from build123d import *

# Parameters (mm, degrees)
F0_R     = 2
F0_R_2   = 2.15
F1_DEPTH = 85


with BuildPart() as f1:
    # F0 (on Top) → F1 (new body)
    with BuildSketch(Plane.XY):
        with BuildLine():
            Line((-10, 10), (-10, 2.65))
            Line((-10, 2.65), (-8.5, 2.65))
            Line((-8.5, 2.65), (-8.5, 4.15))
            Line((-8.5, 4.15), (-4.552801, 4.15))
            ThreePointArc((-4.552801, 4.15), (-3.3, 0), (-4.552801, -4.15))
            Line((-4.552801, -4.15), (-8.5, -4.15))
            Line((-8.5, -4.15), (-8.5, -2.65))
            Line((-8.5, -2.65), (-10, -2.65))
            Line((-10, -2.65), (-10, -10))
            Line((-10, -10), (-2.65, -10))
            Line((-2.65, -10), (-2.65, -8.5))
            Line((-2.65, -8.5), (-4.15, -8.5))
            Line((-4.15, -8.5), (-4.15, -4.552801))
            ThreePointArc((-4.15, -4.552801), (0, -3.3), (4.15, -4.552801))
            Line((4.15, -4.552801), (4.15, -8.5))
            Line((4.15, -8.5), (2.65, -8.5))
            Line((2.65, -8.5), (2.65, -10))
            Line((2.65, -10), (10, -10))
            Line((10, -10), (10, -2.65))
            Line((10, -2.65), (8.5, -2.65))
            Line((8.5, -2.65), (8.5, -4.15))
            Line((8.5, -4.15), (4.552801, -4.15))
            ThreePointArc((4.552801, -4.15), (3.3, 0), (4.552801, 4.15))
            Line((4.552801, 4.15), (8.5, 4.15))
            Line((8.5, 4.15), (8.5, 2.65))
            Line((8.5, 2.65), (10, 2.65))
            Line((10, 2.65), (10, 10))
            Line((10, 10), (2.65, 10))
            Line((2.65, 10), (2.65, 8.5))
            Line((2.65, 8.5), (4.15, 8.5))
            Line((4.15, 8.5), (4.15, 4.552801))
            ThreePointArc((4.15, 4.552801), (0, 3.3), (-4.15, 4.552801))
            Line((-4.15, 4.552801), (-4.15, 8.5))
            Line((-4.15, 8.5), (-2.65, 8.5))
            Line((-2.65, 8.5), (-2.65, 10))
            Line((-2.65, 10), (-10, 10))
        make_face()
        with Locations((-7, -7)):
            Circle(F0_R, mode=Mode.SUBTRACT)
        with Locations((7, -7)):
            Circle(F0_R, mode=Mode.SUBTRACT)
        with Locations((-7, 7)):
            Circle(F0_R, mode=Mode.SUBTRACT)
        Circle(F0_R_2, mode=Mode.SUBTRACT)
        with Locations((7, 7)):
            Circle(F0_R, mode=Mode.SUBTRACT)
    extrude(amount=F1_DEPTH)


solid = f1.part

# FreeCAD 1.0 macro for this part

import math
import FreeCAD as App
import Part
import Sketcher
Q = App.Units.Quantity

doc = App.newDocument("Part")
body = doc.addObject("PartDesign::Body", "Body")

# Sketch on XY plane
sketch1 = doc.addObject("Sketcher::SketchObject", "Sketch")
body.addObject(sketch1)
sketch1.AttachmentSupport = (doc.XY_Plane, [""])
sketch1.MapMode = "FlatFace"
sketch1.addGeometry([
    Part.LineSegment(App.Vector(-10, 10, 0), App.Vector(-10, 2.6, 0)),  # 0
    Part.LineSegment(App.Vector(-10, 2.6, 0), App.Vector(-8.5, 2.6, 0)),  # 1
    Part.LineSegment(App.Vector(-8.5, 2.6, 0), App.Vector(-8.5, 4.2, 0)),  # 2
    Part.LineSegment(App.Vector(-8.5, 4.2, 0), App.Vector(-4.6, 4.2, 0)),  # 3
    Part.ArcOfCircle(Part.Circle(App.Vector(-10.8, 0, 0), App.Vector(0, 0, 1), 7.5), math.radians(-34), math.radians(34)),  # 4
    Part.LineSegment(App.Vector(-4.6, -4.2, 0), App.Vector(-8.5, -4.2, 0)),  # 5
    Part.LineSegment(App.Vector(-8.5, -4.2, 0), App.Vector(-8.5, -2.6, 0)),  # 6
    Part.LineSegment(App.Vector(-8.5, -2.6, 0), App.Vector(-10, -2.6, 0)),  # 7
    Part.LineSegment(App.Vector(-10, -2.6, 0), App.Vector(-10, -10, 0)),  # 8
    Part.LineSegment(App.Vector(-10, -10, 0), App.Vector(-2.6, -10, 0)),  # 9
    Part.LineSegment(App.Vector(-2.6, -10, 0), App.Vector(-2.6, -8.5, 0)),  # 10
    Part.LineSegment(App.Vector(-2.6, -8.5, 0), App.Vector(-4.2, -8.5, 0)),  # 11
    Part.LineSegment(App.Vector(-4.2, -8.5, 0), App.Vector(-4.2, -4.6, 0)),  # 12
    Part.ArcOfCircle(Part.Circle(App.Vector(0, -10.8, 0), App.Vector(0, 0, 1), 7.5), math.radians(56), math.radians(124)),  # 13
    Part.LineSegment(App.Vector(4.2, -4.6, 0), App.Vector(4.2, -8.5, 0)),  # 14
    Part.LineSegment(App.Vector(4.2, -8.5, 0), App.Vector(2.6, -8.5, 0)),  # 15
    Part.LineSegment(App.Vector(2.6, -8.5, 0), App.Vector(2.6, -10, 0)),  # 16
    Part.LineSegment(App.Vector(2.6, -10, 0), App.Vector(10, -10, 0)),  # 17
    Part.LineSegment(App.Vector(10, -10, 0), App.Vector(10, -2.6, 0)),  # 18
    Part.LineSegment(App.Vector(10, -2.6, 0), App.Vector(8.5, -2.6, 0)),  # 19
    Part.LineSegment(App.Vector(8.5, -2.6, 0), App.Vector(8.5, -4.2, 0)),  # 20
    Part.LineSegment(App.Vector(8.5, -4.2, 0), App.Vector(4.6, -4.2, 0)),  # 21
    Part.ArcOfCircle(Part.Circle(App.Vector(10.8, 0, 0), App.Vector(0, 0, 1), 7.5), math.radians(146), math.radians(214)),  # 22
    Part.LineSegment(App.Vector(4.6, 4.2, 0), App.Vector(8.5, 4.2, 0)),  # 23
    Part.LineSegment(App.Vector(8.5, 4.2, 0), App.Vector(8.5, 2.6, 0)),  # 24
    Part.LineSegment(App.Vector(8.5, 2.6, 0), App.Vector(10, 2.6, 0)),  # 25
    Part.LineSegment(App.Vector(10, 2.6, 0), App.Vector(10, 10, 0)),  # 26
    Part.LineSegment(App.Vector(10, 10, 0), App.Vector(2.6, 10, 0)),  # 27
    Part.LineSegment(App.Vector(2.6, 10, 0), App.Vector(2.6, 8.5, 0)),  # 28
    Part.LineSegment(App.Vector(2.6, 8.5, 0), App.Vector(4.2, 8.5, 0)),  # 29
    Part.LineSegment(App.Vector(4.2, 8.5, 0), App.Vector(4.2, 4.6, 0)),  # 30
    Part.ArcOfCircle(Part.Circle(App.Vector(0, 10.8, 0), App.Vector(0, 0, 1), 7.5), math.radians(-124), math.radians(-56)),  # 31
    Part.LineSegment(App.Vector(-4.2, 4.6, 0), App.Vector(-4.2, 8.5, 0)),  # 32
    Part.LineSegment(App.Vector(-4.2, 8.5, 0), App.Vector(-2.6, 8.5, 0)),  # 33
    Part.LineSegment(App.Vector(-2.6, 8.5, 0), App.Vector(-2.6, 10, 0)),  # 34
    Part.LineSegment(App.Vector(-2.6, 10, 0), App.Vector(-10, 10, 0)),  # 35
    Part.Circle(App.Vector(-7, -7, 0), App.Vector(0, 0, 1), 2),  # 36
    Part.Circle(App.Vector(7, -7, 0), App.Vector(0, 0, 1), 2),  # 37
    Part.Circle(App.Vector(-7, 7, 0), App.Vector(0, 0, 1), 2),  # 38
    Part.Circle(App.Vector(0, 0, 0), App.Vector(0, 0, 1), 2.1),  # 39
    Part.Circle(App.Vector(7, 7, 0), App.Vector(0, 0, 1), 2),  # 40
], False)
sketch1.addConstraint([
    Sketcher.Constraint("Coincident", 0, 2, 1, 1),
    Sketcher.Constraint("Coincident", 1, 2, 2, 1),
    Sketcher.Constraint("Coincident", 2, 2, 3, 1),
    Sketcher.Constraint("Coincident", 3, 2, 4, 2),
    Sketcher.Constraint("Coincident", 4, 1, 5, 1),
    Sketcher.Constraint("Coincident", 5, 2, 6, 1),
    Sketcher.Constraint("Coincident", 6, 2, 7, 1),
    Sketcher.Constraint("Coincident", 7, 2, 8, 1),
    Sketcher.Constraint("Coincident", 8, 2, 9, 1),
    Sketcher.Constraint("Coincident", 9, 2, 10, 1),
    Sketcher.Constraint("Coincident", 10, 2, 11, 1),
    Sketcher.Constraint("Coincident", 11, 2, 12, 1),
    Sketcher.Constraint("Coincident", 12, 2, 13, 2),
    Sketcher.Constraint("Coincident", 13, 1, 14, 1),
    Sketcher.Constraint("Coincident", 14, 2, 15, 1),
    Sketcher.Constraint("Coincident", 15, 2, 16, 1),
    Sketcher.Constraint("Coincident", 16, 2, 17, 1),
    Sketcher.Constraint("Coincident", 17, 2, 18, 1),
    Sketcher.Constraint("Coincident", 18, 2, 19, 1),
    Sketcher.Constraint("Coincident", 19, 2, 20, 1),
    Sketcher.Constraint("Coincident", 20, 2, 21, 1),
    Sketcher.Constraint("Coincident", 21, 2, 22, 2),
    Sketcher.Constraint("Coincident", 22, 1, 23, 1),
    Sketcher.Constraint("Coincident", 23, 2, 24, 1),
    Sketcher.Constraint("Coincident", 24, 2, 25, 1),
    Sketcher.Constraint("Coincident", 25, 2, 26, 1),
    Sketcher.Constraint("Coincident", 26, 2, 27, 1),
    Sketcher.Constraint("Coincident", 27, 2, 28, 1),
    Sketcher.Constraint("Coincident", 28, 2, 29, 1),
    Sketcher.Constraint("Coincident", 29, 2, 30, 1),
    Sketcher.Constraint("Coincident", 30, 2, 31, 2),
    Sketcher.Constraint("Coincident", 31, 1, 32, 1),
    Sketcher.Constraint("Coincident", 32, 2, 33, 1),
    Sketcher.Constraint("Coincident", 33, 2, 34, 1),
    Sketcher.Constraint("Coincident", 34, 2, 35, 1),
    Sketcher.Constraint("Coincident", 35, 2, 0, 1),
    Sketcher.Constraint("Vertical", 0),
    Sketcher.Constraint("Horizontal", 1),
    Sketcher.Constraint("Vertical", 2),
    Sketcher.Constraint("Horizontal", 3),
    Sketcher.Constraint("Horizontal", 5),
    Sketcher.Constraint("Vertical", 6),
    Sketcher.Constraint("Horizontal", 7),
    Sketcher.Constraint("Vertical", 8),
    Sketcher.Constraint("Horizontal", 9),
    Sketcher.Constraint("Vertical", 10),
    Sketcher.Constraint("Horizontal", 11),
    Sketcher.Constraint("Vertical", 12),
    Sketcher.Constraint("Vertical", 14),
    Sketcher.Constraint("Horizontal", 15),
    Sketcher.Constraint("Vertical", 16),
    Sketcher.Constraint("Horizontal", 17),
    Sketcher.Constraint("Vertical", 18),
    Sketcher.Constraint("Horizontal", 19),
    Sketcher.Constraint("Vertical", 20),
    Sketcher.Constraint("Horizontal", 21),
    Sketcher.Constraint("Horizontal", 23),
    Sketcher.Constraint("Vertical", 24),
    Sketcher.Constraint("Horizontal", 25),
    Sketcher.Constraint("Vertical", 26),
    Sketcher.Constraint("Horizontal", 27),
    Sketcher.Constraint("Vertical", 28),
    Sketcher.Constraint("Horizontal", 29),
    Sketcher.Constraint("Vertical", 30),
    Sketcher.Constraint("Vertical", 32),
    Sketcher.Constraint("Horizontal", 33),
    Sketcher.Constraint("Vertical", 34),
    Sketcher.Constraint("Horizontal", 35),
    Sketcher.Constraint("Coincident", 39, 3, -1, 1),
    Sketcher.Constraint("Equal", 4, 13),
    Sketcher.Constraint("Equal", 13, 22),
    Sketcher.Constraint("Equal", 22, 31),
    Sketcher.Constraint("Equal", 36, 37),
    Sketcher.Constraint("Equal", 37, 38),
    Sketcher.Constraint("Equal", 38, 40),
    Sketcher.Constraint("Symmetric", 4, 3, 22, 3, -1, 1),
    Sketcher.Constraint("Symmetric", 13, 3, 31, 3, -1, 1),
    Sketcher.Constraint("Symmetric", 37, 3, 38, 3, -1, 1),
    Sketcher.Constraint("Symmetric", 36, 3, 40, 3, -1, 1),
    Sketcher.Constraint("Symmetric", 0, 2, 18, 2, -1, 1),
    Sketcher.Constraint("Symmetric", 2, 2, 20, 2, -1, 1),
    Sketcher.Constraint("Symmetric", 5, 2, 23, 2, -1, 1),
    Sketcher.Constraint("Symmetric", 7, 2, 25, 2, -1, 1),
    Sketcher.Constraint("Symmetric", 9, 2, 27, 2, -1, 1),
    Sketcher.Constraint("Symmetric", 11, 2, 29, 2, -1, 1),
    Sketcher.Constraint("Symmetric", 14, 2, 32, 2, -1, 1),
    Sketcher.Constraint("Symmetric", 16, 2, 34, 2, -1, 1),
    Sketcher.Constraint("Symmetric", 36, 3, 37, 3, -2),
    Sketcher.Constraint("Symmetric", 12, 2, 13, 1, -2),
    Sketcher.Constraint("Symmetric", 10, 2, 15, 2, -2),
    Sketcher.Constraint("Symmetric", 8, 2, 17, 2, -2),
    Sketcher.Constraint("Symmetric", 6, 2, 19, 2, -2),
    Sketcher.Constraint("Symmetric", 4, 1, 21, 2, -2),
    Sketcher.Constraint("Equal", 7, 11),
    Sketcher.Constraint("Equal", 35, 0),
    Sketcher.Constraint("Equal", 33, 2),
    Sketcher.Constraint("Equal", 6, 10),
    Sketcher.Constraint("Equal", 23, 12),
    Sketcher.Constraint("Diameter", 36, Q("4 mm")),
    Sketcher.Constraint("Diameter", 39, Q("4.3 mm")),
    Sketcher.Constraint("Radius", 4, Q("7.499998 mm")),
    Sketcher.Constraint("DistanceX", 1, 1, 1, 2, Q("1.5 mm")),
    Sketcher.Constraint("DistanceX", 36, 3, -1, 1, Q("7 mm")),
    Sketcher.Constraint("DistanceY", 36, 3, -1, 1, Q("7 mm")),
    Sketcher.Constraint("DistanceX", 0, 2, -1, 1, Q("10 mm")),
    Sketcher.Constraint("DistanceY", 8, 2, -1, 1, Q("10 mm")),
    Sketcher.Constraint("DistanceX", 9, 1, 9, 2, Q("7.35 mm")),
    Sketcher.Constraint("DistanceX", 4, 3, -1, 1, Q("10.799998 mm")),
])
pad1 = doc.addObject("PartDesign::Pad", "Pad")
body.addObject(pad1)
pad1.Profile = sketch1
pad1.Length = 85

doc.recompute()
